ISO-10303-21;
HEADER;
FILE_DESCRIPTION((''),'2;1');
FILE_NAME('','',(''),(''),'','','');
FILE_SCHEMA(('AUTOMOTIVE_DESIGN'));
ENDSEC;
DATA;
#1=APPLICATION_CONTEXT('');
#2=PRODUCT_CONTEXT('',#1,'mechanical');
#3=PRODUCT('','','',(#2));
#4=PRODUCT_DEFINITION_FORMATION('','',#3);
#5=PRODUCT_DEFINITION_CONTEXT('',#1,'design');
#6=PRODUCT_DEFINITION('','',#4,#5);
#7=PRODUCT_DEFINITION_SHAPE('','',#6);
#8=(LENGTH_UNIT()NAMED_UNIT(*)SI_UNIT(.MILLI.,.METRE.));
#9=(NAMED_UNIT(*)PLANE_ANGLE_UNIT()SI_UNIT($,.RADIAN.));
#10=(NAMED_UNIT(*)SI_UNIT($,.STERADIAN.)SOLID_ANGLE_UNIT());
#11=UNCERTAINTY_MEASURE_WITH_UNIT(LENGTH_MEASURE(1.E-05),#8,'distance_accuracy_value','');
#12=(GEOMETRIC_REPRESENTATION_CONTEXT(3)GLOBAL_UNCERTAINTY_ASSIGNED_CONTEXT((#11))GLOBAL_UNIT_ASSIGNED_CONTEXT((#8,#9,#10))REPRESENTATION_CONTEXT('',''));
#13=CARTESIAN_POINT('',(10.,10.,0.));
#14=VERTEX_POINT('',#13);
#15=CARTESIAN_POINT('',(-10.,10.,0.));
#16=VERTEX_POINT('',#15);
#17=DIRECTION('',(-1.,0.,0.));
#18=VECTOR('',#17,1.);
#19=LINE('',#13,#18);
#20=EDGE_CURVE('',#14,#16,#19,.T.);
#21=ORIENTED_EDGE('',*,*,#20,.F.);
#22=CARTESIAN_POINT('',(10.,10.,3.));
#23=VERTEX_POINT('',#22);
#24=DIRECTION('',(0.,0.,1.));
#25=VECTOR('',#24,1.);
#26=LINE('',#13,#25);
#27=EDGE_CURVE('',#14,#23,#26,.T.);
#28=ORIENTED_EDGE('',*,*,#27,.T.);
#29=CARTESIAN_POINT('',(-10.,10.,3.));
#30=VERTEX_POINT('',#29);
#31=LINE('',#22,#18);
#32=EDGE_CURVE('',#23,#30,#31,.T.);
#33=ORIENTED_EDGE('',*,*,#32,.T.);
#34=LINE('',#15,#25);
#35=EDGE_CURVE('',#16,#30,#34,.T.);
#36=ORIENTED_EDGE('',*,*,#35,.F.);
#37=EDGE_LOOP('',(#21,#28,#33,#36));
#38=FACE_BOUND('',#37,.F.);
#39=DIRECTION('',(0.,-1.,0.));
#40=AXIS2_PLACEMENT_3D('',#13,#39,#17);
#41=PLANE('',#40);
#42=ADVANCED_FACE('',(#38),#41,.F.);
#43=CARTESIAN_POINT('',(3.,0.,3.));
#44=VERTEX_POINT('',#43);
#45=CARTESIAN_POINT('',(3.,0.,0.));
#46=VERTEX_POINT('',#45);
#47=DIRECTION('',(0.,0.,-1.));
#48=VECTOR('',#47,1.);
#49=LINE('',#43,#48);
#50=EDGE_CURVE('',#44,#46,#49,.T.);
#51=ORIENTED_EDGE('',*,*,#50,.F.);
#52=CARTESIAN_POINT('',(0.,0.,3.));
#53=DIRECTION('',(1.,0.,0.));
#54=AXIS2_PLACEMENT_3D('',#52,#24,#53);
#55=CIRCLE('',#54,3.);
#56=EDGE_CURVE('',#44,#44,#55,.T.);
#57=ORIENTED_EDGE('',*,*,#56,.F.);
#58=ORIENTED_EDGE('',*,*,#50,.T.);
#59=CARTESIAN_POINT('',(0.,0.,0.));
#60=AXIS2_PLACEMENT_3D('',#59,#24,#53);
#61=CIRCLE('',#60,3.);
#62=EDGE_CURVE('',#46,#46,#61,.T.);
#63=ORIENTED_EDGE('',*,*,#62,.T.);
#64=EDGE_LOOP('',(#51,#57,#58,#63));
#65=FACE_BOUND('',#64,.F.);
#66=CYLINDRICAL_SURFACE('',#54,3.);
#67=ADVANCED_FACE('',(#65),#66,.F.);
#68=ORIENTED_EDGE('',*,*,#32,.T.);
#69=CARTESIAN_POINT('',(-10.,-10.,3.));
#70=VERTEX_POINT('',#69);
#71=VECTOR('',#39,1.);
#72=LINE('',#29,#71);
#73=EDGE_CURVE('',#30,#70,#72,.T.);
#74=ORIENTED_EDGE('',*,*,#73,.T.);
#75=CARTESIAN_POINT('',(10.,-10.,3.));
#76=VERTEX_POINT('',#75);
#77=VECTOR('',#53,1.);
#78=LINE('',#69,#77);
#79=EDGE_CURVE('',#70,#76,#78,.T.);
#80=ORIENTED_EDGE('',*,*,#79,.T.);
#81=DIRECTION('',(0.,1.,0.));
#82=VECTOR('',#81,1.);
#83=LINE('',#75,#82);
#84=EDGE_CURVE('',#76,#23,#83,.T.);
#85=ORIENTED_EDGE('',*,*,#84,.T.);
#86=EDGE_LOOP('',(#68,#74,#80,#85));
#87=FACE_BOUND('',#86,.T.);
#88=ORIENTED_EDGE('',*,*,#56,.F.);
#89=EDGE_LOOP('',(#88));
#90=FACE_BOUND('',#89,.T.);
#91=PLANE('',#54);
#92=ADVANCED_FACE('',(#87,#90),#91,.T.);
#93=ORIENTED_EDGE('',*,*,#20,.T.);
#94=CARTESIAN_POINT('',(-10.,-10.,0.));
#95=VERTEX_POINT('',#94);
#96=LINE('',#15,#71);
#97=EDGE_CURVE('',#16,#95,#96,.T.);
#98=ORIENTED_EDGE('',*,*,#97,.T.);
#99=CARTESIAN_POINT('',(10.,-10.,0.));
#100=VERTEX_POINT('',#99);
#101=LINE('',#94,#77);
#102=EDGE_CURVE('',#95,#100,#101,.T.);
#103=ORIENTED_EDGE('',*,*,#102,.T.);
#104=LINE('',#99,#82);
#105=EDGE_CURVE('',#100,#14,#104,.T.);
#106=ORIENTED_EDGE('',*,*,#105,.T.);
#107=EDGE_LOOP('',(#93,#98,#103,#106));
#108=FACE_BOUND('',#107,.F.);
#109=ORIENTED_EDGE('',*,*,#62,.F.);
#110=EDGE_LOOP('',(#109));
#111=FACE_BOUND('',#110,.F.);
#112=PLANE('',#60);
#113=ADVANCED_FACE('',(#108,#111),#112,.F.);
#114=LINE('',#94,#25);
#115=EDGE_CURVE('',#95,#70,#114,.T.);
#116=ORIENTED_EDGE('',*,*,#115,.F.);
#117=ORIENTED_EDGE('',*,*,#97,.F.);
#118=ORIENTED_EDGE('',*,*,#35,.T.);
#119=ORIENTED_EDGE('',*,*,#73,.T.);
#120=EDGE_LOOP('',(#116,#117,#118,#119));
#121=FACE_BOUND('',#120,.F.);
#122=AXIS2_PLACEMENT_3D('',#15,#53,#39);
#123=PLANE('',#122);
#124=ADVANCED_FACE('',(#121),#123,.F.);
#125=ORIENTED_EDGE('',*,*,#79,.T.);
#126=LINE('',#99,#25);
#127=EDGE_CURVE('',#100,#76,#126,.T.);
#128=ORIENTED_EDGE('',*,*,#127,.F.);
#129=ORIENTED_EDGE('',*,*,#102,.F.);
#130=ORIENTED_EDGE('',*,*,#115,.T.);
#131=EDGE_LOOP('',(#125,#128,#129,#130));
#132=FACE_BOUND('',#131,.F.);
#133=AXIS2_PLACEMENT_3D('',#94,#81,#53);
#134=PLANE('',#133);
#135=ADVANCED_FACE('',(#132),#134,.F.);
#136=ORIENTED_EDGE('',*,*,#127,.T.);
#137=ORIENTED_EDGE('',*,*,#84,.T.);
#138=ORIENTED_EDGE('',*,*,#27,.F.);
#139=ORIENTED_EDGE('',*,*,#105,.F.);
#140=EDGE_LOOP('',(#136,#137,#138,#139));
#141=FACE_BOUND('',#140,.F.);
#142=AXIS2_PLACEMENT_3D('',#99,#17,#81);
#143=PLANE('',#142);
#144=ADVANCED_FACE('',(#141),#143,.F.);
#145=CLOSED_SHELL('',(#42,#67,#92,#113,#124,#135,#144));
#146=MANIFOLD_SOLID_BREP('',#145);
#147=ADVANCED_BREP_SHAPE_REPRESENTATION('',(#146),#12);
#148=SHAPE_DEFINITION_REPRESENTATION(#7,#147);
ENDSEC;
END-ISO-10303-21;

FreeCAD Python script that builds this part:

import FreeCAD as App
import Part
import Sketcher

V = App.Vector

doc = App.newDocument("Part")
body = doc.addObject("PartDesign::Body", "Body")

sketch1 = body.newObject("Sketcher::SketchObject", "Sketch")
sketch1.AttachmentSupport = (doc.getObject("XY_Plane"), [""])
sketch1.MapMode = "FlatFace"
sketch1.addGeometry([
    Part.LineSegment(V(-10, 10, 0), V(-10, -10, 0)),
    Part.LineSegment(V(-10, -10, 0), V(10, -10, 0)),
    Part.LineSegment(V(10, -10, 0), V(10, 10, 0)),
    Part.LineSegment(V(10, 10, 0), V(-10, 10, 0)),
], False)
sketch1.addConstraint([
    Sketcher.Constraint("Coincident", 0, 2, 1, 1),
    Sketcher.Constraint("Coincident", 1, 2, 2, 1),
    Sketcher.Constraint("Coincident", 2, 2, 3, 1),
    Sketcher.Constraint("Coincident", 3, 2, 0, 1),
    Sketcher.Constraint("Vertical", 0),
    Sketcher.Constraint("Horizontal", 1),
    Sketcher.Constraint("Vertical", 2),
    Sketcher.Constraint("Horizontal", 3),
    Sketcher.Constraint("Symmetric", 0, 2, 2, 2, -1, 1),
    Sketcher.Constraint("Equal", 3, 0),
    Sketcher.Constraint("DistanceX", 1, 1, 1, 2, 20.0),
])
pad1 = body.newObject("PartDesign::Pad", "Pad")
pad1.Profile = sketch1
pad1.Length = 3

sketch2 = body.newObject("Sketcher::SketchObject", "Sketch001")
sketch2.AttachmentSupport = (doc.getObject("XY_Plane"), [""])
sketch2.MapMode = "FlatFace"
sketch2.AttachmentOffset = App.Placement(V(0, 0, 3), App.Rotation())
sketch2.addGeometry(Part.Circle(V(0, 0, 0), V(0, 0, 1), 3), False)
sketch2.addConstraint([
    Sketcher.Constraint("Coincident", 0, 3, -1, 1),
    Sketcher.Constraint("Diameter", 0, 6.0),
])
pocket1 = body.newObject("PartDesign::Pocket", "Pocket")
pocket1.Profile = sketch2
pocket1.Length = 3

doc.recompute()
